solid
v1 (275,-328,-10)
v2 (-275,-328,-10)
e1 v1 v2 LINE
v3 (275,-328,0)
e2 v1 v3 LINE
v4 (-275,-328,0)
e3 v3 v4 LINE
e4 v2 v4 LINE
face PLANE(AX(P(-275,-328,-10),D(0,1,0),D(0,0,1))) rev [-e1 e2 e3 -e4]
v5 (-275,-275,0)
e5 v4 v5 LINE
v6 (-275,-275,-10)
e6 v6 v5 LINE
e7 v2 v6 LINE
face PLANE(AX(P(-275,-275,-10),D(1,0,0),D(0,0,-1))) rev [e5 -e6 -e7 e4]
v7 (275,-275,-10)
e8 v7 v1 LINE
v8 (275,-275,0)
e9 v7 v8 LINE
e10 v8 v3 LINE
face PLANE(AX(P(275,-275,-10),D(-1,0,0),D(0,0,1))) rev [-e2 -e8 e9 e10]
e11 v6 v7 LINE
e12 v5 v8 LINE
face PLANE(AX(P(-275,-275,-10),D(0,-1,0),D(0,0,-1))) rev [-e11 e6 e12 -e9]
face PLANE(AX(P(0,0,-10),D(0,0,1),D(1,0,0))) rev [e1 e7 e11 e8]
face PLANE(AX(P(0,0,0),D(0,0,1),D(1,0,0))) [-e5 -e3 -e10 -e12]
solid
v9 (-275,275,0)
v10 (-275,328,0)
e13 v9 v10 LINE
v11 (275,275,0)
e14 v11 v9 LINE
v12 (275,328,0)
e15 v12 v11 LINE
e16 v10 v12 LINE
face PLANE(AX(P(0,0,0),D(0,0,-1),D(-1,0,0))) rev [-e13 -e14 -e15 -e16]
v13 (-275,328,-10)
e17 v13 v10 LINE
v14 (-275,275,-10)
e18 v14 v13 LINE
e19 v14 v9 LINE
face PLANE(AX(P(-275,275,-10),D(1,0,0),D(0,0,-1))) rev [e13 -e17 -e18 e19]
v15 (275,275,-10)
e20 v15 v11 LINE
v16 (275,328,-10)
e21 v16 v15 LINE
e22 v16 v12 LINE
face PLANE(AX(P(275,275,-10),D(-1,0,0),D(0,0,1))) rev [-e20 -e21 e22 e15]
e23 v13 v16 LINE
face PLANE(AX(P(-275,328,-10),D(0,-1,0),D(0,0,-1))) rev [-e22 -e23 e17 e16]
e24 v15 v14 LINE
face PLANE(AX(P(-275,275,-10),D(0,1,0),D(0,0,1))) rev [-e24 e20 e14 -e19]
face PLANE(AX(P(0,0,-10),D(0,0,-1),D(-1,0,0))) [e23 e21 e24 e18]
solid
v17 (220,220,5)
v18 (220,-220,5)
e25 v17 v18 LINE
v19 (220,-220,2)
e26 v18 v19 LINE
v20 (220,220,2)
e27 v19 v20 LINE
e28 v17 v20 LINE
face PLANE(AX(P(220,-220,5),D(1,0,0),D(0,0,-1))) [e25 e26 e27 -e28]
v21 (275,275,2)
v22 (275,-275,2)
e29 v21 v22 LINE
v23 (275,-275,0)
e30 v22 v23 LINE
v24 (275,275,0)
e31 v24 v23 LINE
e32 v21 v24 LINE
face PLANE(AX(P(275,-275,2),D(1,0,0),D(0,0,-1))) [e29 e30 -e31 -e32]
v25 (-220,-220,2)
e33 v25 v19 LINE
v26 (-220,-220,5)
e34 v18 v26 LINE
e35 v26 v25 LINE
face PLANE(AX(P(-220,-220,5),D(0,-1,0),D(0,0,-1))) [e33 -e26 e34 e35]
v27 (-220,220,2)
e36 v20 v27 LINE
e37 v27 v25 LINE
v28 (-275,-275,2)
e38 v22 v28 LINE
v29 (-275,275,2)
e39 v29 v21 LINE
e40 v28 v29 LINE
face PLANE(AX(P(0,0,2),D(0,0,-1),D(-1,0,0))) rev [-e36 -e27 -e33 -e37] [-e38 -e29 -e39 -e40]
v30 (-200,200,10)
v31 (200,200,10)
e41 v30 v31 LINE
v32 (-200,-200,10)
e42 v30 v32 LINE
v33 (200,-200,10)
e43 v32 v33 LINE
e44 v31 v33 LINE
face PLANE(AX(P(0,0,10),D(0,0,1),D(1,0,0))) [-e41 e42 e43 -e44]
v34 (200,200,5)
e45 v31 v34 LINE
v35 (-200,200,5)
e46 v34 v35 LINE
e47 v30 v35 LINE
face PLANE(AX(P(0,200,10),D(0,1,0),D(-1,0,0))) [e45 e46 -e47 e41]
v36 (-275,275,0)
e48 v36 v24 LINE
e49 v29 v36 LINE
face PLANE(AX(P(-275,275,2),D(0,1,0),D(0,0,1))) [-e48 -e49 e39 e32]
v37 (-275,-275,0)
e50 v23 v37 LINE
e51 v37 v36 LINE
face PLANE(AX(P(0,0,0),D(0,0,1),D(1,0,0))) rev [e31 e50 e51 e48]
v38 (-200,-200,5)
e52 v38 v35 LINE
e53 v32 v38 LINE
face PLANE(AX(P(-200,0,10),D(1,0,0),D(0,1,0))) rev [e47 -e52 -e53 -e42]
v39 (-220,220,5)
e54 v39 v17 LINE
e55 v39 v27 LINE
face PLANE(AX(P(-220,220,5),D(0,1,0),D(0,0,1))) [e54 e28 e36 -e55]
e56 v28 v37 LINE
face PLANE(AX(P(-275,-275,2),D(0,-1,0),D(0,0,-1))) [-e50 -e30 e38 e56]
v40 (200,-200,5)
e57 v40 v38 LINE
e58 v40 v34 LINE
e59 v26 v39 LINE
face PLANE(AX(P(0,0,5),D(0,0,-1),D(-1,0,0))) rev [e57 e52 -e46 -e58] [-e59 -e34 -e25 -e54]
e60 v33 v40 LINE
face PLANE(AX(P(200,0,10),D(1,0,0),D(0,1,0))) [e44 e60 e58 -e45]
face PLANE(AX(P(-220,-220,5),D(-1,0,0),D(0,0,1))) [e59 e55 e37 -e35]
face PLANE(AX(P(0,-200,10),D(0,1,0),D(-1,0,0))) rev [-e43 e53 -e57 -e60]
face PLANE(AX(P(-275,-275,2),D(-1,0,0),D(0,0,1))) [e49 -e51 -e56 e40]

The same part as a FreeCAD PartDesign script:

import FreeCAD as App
import Part
import Sketcher
from FreeCAD import Vector
Q = App.Units.Quantity


def add_polygon(sketch, points):
    """Adds a closed chain of lines whose ends are joined by coincident constraints."""
    first, n = sketch.GeometryCount, len(points)
    for a, b in zip(points, points[1:] + points[:1]):
        sketch.addGeometry(Part.LineSegment(App.Vector(*a, 0), App.Vector(*b, 0)), False)
    for i in range(n):
        sketch.addConstraint(Sketcher.Constraint("Coincident", first + i, 2, first + (i + 1) % n, 1))

doc = App.newDocument("Part")
body = doc.addObject("PartDesign::Body", "Body")

sketch1 = body.newObject("Sketcher::SketchObject", "Sketch")
sketch1.AttachmentSupport = (doc.getObject("XY_Plane"), [""])
sketch1.MapMode = "FlatFace"
add_polygon(sketch1, [(-200, -200), (200, -200), (200, 200), (-200, 200)])
sketch1.addConstraint(Sketcher.Constraint("Horizontal", 0))
sketch1.addConstraint(Sketcher.Constraint("Vertical", 1))
sketch1.addConstraint(Sketcher.Constraint("Horizontal", 2))
sketch1.addConstraint(Sketcher.Constraint("Vertical", 3))
sketch1.addConstraint(Sketcher.Constraint("Symmetric", 0, 2, 2, 2, -1, 1))
sketch1.addConstraint(Sketcher.Constraint("Equal", 2, 1))
sketch1.addConstraint(Sketcher.Constraint("DistanceX", 0, 1, 0, 2, Q("400 mm")))
pad1 = body.newObject("PartDesign::Pad", "Pad")
pad1.Profile = sketch1
pad1.Length = 10

sketch2 = body.newObject("Sketcher::SketchObject", "Sketch001")
sketch2.AttachmentSupport = (doc.getObject("XY_Plane"), [""])
sketch2.MapMode = "FlatFace"
add_polygon(sketch2, [(-220, -220), (-220, 220), (220, 220), (220, -220)])
sketch2.addConstraint(Sketcher.Constraint("Vertical", 0))
sketch2.addConstraint(Sketcher.Constraint("Horizontal", 1))
sketch2.addConstraint(Sketcher.Constraint("Vertical", 2))
sketch2.addConstraint(Sketcher.Constraint("Horizontal", 3))
sketch2.addConstraint(Sketcher.Constraint("Symmetric", 0, 2, 2, 2, -1, 1))
sketch2.addConstraint(Sketcher.Constraint("Equal", 3, 0))
sketch2.addConstraint(Sketcher.Constraint("DistanceX", 1, 1, 1, 2, Q("440 mm")))
pad2 = body.newObject("PartDesign::Pad", "Pad001")
pad2.Profile = sketch2
pad2.Length = 5

sketch3 = body.newObject("Sketcher::SketchObject", "Sketch002")
sketch3.AttachmentSupport = (doc.getObject("XY_Plane"), [""])
sketch3.MapMode = "FlatFace"
add_polygon(sketch3, [(-275, -275), (-275, 275), (275, 275), (275, -275)])
sketch3.addConstraint(Sketcher.Constraint("Vertical", 0))
sketch3.addConstraint(Sketcher.Constraint("Horizontal", 1))
sketch3.addConstraint(Sketcher.Constraint("Vertical", 2))
sketch3.addConstraint(Sketcher.Constraint("Horizontal", 3))
sketch3.addConstraint(Sketcher.Constraint("Symmetric", 0, 2, 2, 2, -1, 1))
sketch3.addConstraint(Sketcher.Constraint("Equal", 3, 0))
sketch3.addConstraint(Sketcher.Constraint("DistanceX", 1, 1, 1, 2, Q("550 mm")))
pad3 = body.newObject("PartDesign::Pad", "Pad002")
pad3.Profile = sketch3
pad3.Length = 2
body2 = doc.addObject("PartDesign::Body", "Body001")

sketch4 = body2.newObject("Sketcher::SketchObject", "Sketch003")
sketch4.AttachmentSupport = (doc.getObject("XY_Plane001"), [""])
sketch4.MapMode = "FlatFace"
add_polygon(sketch4, [(-275, -328), (-275, -275), (275, -275), (275, -328)])
sketch4.addConstraint(Sketcher.Constraint("Vertical", 0))
sketch4.addConstraint(Sketcher.Constraint("Horizontal", 1))
sketch4.addConstraint(Sketcher.Constraint("Vertical", 2))
sketch4.addConstraint(Sketcher.Constraint("Horizontal", 3))
sketch4.addConstraint(Sketcher.Constraint("DistanceX", 1, 1, 1, 2, Q("550 mm")))
sketch4.addConstraint(Sketcher.Constraint("DistanceY", 0, 1, 0, 2, Q("53 mm")))
sketch4.addConstraint(Sketcher.Constraint("DistanceX", 0, 2, -1, 1, Q("275 mm")))
sketch4.addConstraint(Sketcher.Constraint("DistanceY", 0, 2, -1, 1, Q("275 mm")))
pad4 = body2.newObject("PartDesign::Pad", "Pad003")
pad4.Profile = sketch4
pad4.Length = 10
pad4.Reversed = True
body3 = doc.addObject("PartDesign::Body", "Body002")

sketch5 = body3.newObject("Sketcher::SketchObject", "Sketch004")
sketch5.AttachmentSupport = (doc.getObject("XY_Plane002"), [""])
sketch5.MapMode = "FlatFace"
add_polygon(sketch5, [(-275, 275), (-275, 328), (275, 328), (275, 275)])
sketch5.addConstraint(Sketcher.Constraint("Vertical", 0))
sketch5.addConstraint(Sketcher.Constraint("Horizontal", 1))
sketch5.addConstraint(Sketcher.Constraint("Vertical", 2))
sketch5.addConstraint(Sketcher.Constraint("Horizontal", 3))
sketch5.addConstraint(Sketcher.Constraint("DistanceX", 1, 1, 1, 2, Q("550 mm")))
sketch5.addConstraint(Sketcher.Constraint("DistanceY", 0, 1, 0, 2, Q("53 mm")))
sketch5.addConstraint(Sketcher.Constraint("DistanceX", 0, 2, -1, 1, Q("275 mm")))
sketch5.addConstraint(Sketcher.Constraint("DistanceY", -1, 1, 0, 2, Q("328 mm")))
pad5 = body3.newObject("PartDesign::Pad", "Pad004")
pad5.Profile = sketch5
pad5.Length = 10
pad5.Reversed = True

doc.recompute()
